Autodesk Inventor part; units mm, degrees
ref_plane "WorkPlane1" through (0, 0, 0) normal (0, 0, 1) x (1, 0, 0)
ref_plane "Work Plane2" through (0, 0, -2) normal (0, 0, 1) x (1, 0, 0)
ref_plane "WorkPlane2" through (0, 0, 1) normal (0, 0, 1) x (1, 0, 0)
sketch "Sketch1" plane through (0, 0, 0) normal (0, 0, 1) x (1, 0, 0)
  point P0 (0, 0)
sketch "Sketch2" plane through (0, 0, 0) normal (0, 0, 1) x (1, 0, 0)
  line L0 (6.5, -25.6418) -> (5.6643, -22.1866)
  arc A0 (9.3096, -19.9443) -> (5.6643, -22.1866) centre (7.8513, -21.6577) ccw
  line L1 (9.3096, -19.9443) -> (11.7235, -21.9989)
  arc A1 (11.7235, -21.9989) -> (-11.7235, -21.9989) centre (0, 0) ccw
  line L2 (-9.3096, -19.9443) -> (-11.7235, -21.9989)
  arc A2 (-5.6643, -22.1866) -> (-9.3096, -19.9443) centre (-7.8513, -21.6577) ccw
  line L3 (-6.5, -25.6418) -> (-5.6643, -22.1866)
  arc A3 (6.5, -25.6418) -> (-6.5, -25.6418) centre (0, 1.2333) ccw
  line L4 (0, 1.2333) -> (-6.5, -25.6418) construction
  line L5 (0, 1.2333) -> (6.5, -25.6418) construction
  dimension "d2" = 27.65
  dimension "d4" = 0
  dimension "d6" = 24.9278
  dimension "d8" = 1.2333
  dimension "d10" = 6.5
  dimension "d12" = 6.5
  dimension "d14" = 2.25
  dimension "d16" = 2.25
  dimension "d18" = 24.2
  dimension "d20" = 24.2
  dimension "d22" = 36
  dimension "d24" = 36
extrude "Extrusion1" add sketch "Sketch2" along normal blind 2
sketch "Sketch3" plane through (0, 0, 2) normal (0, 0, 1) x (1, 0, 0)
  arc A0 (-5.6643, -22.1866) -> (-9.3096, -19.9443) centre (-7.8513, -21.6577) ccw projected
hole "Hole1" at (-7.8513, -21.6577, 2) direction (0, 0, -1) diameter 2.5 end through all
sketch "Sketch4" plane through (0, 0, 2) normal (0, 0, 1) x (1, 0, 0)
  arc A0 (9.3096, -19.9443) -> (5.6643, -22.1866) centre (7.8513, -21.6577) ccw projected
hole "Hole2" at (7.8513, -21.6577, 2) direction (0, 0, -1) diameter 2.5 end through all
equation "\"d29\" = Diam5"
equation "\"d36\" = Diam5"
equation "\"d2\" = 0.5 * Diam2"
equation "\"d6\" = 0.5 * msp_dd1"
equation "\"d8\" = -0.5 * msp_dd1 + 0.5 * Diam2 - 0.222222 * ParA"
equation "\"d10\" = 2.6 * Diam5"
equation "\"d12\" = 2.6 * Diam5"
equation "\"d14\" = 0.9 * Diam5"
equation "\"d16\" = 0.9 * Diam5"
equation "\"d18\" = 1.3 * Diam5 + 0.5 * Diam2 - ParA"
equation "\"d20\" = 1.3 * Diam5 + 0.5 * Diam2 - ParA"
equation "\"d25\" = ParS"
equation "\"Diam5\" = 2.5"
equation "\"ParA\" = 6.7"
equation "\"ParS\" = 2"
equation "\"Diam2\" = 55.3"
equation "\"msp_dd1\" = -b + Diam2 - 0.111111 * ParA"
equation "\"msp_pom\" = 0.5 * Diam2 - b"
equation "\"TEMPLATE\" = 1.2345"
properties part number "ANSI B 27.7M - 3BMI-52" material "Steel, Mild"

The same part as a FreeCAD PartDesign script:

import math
import FreeCAD as App
import Part
import Sketcher

doc = App.newDocument("Part")
body = doc.addObject("PartDesign::Body", "Body")

sketch1 = body.newObject("Sketcher::SketchObject", "Sketch")
sketch1.AttachmentSupport = (doc.getObject("XY_Plane"), [""])
sketch1.MapMode = "FlatFace"
sketch1.addGeometry([
    Part.LineSegment(App.Vector(5.7, -22.2, 0), App.Vector(6.5, -25.6, 0)),
    Part.ArcOfCircle(Part.Circle(App.Vector(0, 1.2, 0), App.Vector(0, 0, 1), 27.6), math.radians(-76), math.radians(256)),
    Part.LineSegment(App.Vector(-6.5, -25.6, 0), App.Vector(-5.7, -22.2, 0)),
    Part.ArcOfCircle(Part.Circle(App.Vector(-7.9, -21.7, 0), App.Vector(0, 0, 1), 2.3), math.radians(-14), math.radians(130)),
    Part.LineSegment(App.Vector(-9.3, -19.9, 0), App.Vector(-11.7, -22, 0)),
    Part.ArcOfCircle(Part.Circle(App.Vector(0, 0, 0), App.Vector(0, 0, 1), 24.9), math.radians(-62), math.radians(242)),
    Part.LineSegment(App.Vector(11.7, -22, 0), App.Vector(9.3, -19.9, 0)),
    Part.ArcOfCircle(Part.Circle(App.Vector(7.9, -21.7, 0), App.Vector(0, 0, 1), 2.2), math.radians(50), math.radians(194)),
], False)
sketch1.addConstraint([
    Sketcher.Constraint("Coincident", 0, 2, 1, 1),
    Sketcher.Constraint("Coincident", 1, 2, 2, 1),
    Sketcher.Constraint("Tangent", 2, 2, 3, 1),
    Sketcher.Constraint("Tangent", 3, 2, 4, 1),
    Sketcher.Constraint("Coincident", 4, 2, 5, 2),
    Sketcher.Constraint("Coincident", 5, 1, 6, 1),
    Sketcher.Constraint("Tangent", 6, 2, 7, 1),
    Sketcher.Constraint("Tangent", 7, 2, 0, 1),
    Sketcher.Constraint("Coincident", 5, 3, -1, 1),
    Sketcher.Constraint("Equal", 3, 7),
    Sketcher.Constraint("Symmetric", 3, 3, 7, 3, -2),
    Sketcher.Constraint("Symmetric", 0, 2, 1, 2, -2),
    Sketcher.Constraint("Horizontal", 4, 2, 5, 1),
    Sketcher.Constraint("Radius", 1, 27.65),
    Sketcher.Constraint("Radius", 3, 2.25),
    Sketcher.Constraint("DistanceX", -1, 1, 0, 2, 6.5),
    Sketcher.Constraint("Radius", 5, 24.9277),
    Sketcher.Constraint("DistanceY", -1, 1, 1, 3, 1.2333),
    Sketcher.Constraint("Distance", 4, 3.17),
    Sketcher.Constraint("DistanceY", 4, 2, -1, 1, 21.999),
    Sketcher.Constraint("DistanceY", 3, 3, 1, 3, 22.891),
])
pad1 = body.newObject("PartDesign::Pad", "Pad")
pad1.Profile = sketch1
pad1.Length = 2

sketch2 = body.newObject("Sketcher::SketchObject", "Sketch001")
sketch2.AttachmentSupport = (doc.getObject("XY_Plane"), [""])
sketch2.MapMode = "FlatFace"
sketch2.AttachmentOffset = App.Placement(App.Vector(0, 0, 2), App.Rotation())
sketch2.addGeometry(Part.Circle(App.Vector(-7.9, -21.7, 0), App.Vector(0, 0, 1), 1.2), False)
sketch2.addConstraint([
    Sketcher.Constraint("Diameter", 0, 2.5),
    Sketcher.Constraint("DistanceX", 0, 3, -1, 1, 7.8513),
    Sketcher.Constraint("DistanceY", 0, 3, -1, 1, 21.6577),
])
doc.recompute()
hole = body.newObject("PartDesign::Hole", "Hole")
hole.Profile = sketch2
hole.ThreadType = "None"
hole.Diameter = 2.5
hole.DepthType = "ThroughAll"

sketch3 = body.newObject("Sketcher::SketchObject", "Sketch002")
sketch3.AttachmentSupport = (doc.getObject("XY_Plane"), [""])
sketch3.MapMode = "FlatFace"
sketch3.AttachmentOffset = App.Placement(App.Vector(0, 0, 2), App.Rotation())
sketch3.addGeometry(Part.Circle(App.Vector(7.9, -21.7, 0), App.Vector(0, 0, 1), 1.2), False)
sketch3.addConstraint([
    Sketcher.Constraint("Diameter", 0, 2.5),
    Sketcher.Constraint("DistanceX", -1, 1, 0, 3, 7.8513),
    Sketcher.Constraint("DistanceY", 0, 3, -1, 1, 21.6577),
])
doc.recompute()
hole2 = body.newObject("PartDesign::Hole", "Hole001")
hole2.Profile = sketch3
hole2.ThreadType = "None"
hole2.Diameter = 2.5
hole2.DepthType = "ThroughAll"

doc.recompute()
